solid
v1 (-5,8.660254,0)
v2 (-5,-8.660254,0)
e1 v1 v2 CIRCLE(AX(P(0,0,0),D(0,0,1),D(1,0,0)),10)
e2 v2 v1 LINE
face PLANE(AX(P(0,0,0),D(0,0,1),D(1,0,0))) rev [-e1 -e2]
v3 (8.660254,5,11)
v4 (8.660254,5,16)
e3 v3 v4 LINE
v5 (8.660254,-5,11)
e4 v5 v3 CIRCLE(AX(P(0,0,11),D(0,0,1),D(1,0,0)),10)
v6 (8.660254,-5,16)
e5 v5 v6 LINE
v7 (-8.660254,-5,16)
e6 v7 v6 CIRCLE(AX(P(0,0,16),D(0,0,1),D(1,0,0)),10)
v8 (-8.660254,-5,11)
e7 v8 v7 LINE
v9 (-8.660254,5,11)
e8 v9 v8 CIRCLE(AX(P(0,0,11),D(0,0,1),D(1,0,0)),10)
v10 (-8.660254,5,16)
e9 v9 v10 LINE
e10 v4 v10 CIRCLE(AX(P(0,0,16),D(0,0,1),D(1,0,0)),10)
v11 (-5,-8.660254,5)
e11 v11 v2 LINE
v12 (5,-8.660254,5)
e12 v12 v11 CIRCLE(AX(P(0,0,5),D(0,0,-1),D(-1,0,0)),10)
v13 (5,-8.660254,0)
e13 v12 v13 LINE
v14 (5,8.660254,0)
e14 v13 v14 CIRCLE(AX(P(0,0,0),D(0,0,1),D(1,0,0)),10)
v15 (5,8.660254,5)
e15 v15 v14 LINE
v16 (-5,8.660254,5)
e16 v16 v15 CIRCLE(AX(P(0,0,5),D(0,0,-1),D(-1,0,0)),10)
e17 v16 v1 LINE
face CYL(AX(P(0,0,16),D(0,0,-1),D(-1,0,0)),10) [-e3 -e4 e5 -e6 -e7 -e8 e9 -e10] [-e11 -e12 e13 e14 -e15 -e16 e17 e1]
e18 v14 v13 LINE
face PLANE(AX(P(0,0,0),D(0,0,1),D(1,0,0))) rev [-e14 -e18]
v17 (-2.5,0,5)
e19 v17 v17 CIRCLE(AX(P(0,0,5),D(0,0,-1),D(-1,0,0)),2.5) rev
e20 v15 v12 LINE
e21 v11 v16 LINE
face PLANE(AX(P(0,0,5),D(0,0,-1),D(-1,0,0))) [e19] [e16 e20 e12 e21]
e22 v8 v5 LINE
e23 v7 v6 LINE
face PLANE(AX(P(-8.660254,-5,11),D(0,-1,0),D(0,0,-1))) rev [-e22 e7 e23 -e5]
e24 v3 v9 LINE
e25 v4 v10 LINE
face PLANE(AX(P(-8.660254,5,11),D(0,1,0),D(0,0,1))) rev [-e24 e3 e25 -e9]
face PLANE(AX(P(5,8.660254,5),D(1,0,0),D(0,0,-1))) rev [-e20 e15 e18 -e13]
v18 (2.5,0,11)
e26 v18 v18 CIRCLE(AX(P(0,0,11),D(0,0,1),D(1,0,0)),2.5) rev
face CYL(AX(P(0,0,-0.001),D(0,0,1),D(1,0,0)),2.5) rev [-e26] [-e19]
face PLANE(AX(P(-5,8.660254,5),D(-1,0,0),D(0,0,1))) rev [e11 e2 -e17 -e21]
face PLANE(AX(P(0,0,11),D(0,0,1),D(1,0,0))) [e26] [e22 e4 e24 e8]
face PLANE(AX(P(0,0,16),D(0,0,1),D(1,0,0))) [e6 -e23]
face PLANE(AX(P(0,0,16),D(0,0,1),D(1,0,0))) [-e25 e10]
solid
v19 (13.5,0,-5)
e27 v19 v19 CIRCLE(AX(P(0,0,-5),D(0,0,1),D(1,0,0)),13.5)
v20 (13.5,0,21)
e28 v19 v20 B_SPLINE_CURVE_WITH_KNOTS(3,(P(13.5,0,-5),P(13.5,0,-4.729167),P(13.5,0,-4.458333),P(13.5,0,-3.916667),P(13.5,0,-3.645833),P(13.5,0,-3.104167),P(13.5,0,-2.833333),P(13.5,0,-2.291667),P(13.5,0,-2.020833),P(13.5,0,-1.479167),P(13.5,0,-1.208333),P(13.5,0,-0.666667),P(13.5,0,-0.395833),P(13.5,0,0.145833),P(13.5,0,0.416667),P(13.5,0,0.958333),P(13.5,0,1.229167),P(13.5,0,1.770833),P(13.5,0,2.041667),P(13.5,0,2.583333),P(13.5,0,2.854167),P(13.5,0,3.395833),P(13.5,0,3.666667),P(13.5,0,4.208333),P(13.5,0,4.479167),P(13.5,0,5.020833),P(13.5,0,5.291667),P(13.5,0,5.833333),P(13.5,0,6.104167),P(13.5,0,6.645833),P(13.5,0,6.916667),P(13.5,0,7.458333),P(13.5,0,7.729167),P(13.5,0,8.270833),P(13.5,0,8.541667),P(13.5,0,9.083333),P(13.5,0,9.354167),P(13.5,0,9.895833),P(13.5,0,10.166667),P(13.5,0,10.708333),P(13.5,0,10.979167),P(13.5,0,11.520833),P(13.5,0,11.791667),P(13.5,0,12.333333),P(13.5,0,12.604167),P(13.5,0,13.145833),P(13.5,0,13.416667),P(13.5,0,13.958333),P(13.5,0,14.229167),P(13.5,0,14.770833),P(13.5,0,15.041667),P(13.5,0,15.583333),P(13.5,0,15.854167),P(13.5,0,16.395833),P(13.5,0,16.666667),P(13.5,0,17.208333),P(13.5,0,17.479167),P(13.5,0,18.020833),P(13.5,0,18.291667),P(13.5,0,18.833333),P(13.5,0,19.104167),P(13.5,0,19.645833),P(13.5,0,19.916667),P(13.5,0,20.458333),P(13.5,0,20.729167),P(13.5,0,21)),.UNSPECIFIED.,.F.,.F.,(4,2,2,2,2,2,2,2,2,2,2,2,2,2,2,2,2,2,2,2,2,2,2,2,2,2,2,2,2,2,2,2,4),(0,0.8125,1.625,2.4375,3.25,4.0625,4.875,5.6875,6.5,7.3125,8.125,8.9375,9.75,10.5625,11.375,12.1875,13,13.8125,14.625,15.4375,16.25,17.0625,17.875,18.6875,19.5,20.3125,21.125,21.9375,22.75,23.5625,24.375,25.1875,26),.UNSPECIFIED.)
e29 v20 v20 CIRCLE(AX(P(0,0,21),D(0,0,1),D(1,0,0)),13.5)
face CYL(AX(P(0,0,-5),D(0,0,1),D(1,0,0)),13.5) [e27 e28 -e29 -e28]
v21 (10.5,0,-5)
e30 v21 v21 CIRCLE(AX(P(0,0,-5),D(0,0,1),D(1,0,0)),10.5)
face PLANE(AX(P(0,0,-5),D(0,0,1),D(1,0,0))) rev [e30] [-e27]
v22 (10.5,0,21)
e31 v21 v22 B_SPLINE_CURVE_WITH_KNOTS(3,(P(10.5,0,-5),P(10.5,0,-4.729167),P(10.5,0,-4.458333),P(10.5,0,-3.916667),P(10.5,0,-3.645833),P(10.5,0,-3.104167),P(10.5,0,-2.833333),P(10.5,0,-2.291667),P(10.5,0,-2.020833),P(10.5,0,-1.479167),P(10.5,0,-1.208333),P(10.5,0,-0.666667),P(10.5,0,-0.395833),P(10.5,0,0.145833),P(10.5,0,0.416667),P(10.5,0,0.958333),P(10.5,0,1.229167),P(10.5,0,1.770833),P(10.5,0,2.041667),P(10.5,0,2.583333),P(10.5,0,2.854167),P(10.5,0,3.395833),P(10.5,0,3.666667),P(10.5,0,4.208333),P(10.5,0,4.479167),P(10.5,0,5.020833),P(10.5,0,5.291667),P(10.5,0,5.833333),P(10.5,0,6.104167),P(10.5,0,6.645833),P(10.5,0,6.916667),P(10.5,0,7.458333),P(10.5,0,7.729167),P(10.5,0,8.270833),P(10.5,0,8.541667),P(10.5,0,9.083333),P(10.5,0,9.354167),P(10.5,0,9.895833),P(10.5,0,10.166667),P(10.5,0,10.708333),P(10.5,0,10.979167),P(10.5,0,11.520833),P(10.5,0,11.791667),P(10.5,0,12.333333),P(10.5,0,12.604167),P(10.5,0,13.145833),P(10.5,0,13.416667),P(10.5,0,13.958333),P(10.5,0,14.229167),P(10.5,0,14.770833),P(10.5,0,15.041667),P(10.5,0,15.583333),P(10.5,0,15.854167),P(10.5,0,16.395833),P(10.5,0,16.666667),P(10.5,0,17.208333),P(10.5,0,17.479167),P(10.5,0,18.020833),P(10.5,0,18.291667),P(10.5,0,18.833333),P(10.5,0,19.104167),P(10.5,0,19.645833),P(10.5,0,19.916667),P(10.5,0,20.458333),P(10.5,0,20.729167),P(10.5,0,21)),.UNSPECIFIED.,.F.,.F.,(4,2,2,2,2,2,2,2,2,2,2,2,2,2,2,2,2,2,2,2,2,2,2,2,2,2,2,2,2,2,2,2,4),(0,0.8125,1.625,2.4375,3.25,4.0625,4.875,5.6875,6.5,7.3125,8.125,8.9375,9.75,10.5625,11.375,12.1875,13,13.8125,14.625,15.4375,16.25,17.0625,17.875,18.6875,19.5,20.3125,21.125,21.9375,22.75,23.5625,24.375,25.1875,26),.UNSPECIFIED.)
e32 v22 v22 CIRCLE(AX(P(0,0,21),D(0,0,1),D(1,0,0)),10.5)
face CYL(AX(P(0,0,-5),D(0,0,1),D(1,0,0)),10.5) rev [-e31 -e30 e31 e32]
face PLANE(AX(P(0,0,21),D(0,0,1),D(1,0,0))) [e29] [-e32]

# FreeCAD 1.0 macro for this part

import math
import FreeCAD as App
import Part
import Sketcher
Q = App.Units.Quantity

doc = App.newDocument("Part")
body = doc.addObject("PartDesign::Body", "Body")

# Sketch on XY plane
sketch1 = doc.addObject("Sketcher::SketchObject", "Sketch")
body.addObject(sketch1)
sketch1.AttachmentSupport = (doc.XY_Plane, [""])
sketch1.MapMode = "FlatFace"
sketch1.addGeometry(Part.Circle(App.Vector(0, 0, 0), App.Vector(0, 0, 1), 10), False)
sketch1.addConstraint(Sketcher.Constraint("Coincident", 0, 3, -1, 1))
sketch1.addConstraint(Sketcher.Constraint("Diameter", 0, Q("20 mm")))
pad1 = doc.addObject("PartDesign::Pad", "Pad")
body.addObject(pad1)
pad1.Profile = sketch1
pad1.Length = 16

# Sketch on XY plane
sketch2 = doc.addObject("Sketcher::SketchObject", "Sketch001")
body.addObject(sketch2)
sketch2.AttachmentSupport = (doc.XY_Plane, [""])
sketch2.MapMode = "FlatFace"
sketch2.AttachmentOffset = App.Placement(App.Vector(0, 0, 16), App.Rotation())
sketch2.addGeometry(Part.Circle(App.Vector(0, 0, 0), App.Vector(0, 0, 1), 2.5), False)
sketch2.addConstraint(Sketcher.Constraint("Coincident", 0, 3, -1, 1))
sketch2.addConstraint(Sketcher.Constraint("Diameter", 0, Q("5 mm")))
pocket1 = doc.addObject("PartDesign::Pocket", "Pocket")
body.addObject(pocket1)
pocket1.Profile = sketch2
pocket1.Type = "UpToFirst"

# Sketch on XY plane
sketch3 = doc.addObject("Sketcher::SketchObject", "Sketch002")
body.addObject(sketch3)
sketch3.AttachmentSupport = (doc.XY_Plane, [""])
sketch3.MapMode = "FlatFace"
sketch3.AttachmentOffset = App.Placement(App.Vector(0, 0, 11), App.Rotation())
sketch3.addGeometry(Part.LineSegment(App.Vector(9, 5, 0), App.Vector(-9, 5, 0)), False)
sketch3.addGeometry(Part.ArcOfCircle(Part.Circle(App.Vector(0, 0, 0), App.Vector(0, 0, 1), 10), math.radians(150), math.radians(210)), False)
sketch3.addGeometry(Part.LineSegment(App.Vector(-9, -5, 0), App.Vector(9, -5, 0)), False)
sketch3.addGeometry(Part.ArcOfCircle(Part.Circle(App.Vector(0, 0, 0), App.Vector(0, 0, 1), 10), math.radians(-30), math.radians(30)), False)
sketch3.addConstraint(Sketcher.Constraint("Coincident", 0, 2, 1, 1))
sketch3.addConstraint(Sketcher.Constraint("Coincident", 1, 2, 2, 1))
sketch3.addConstraint(Sketcher.Constraint("Coincident", 2, 2, 3, 1))
sketch3.addConstraint(Sketcher.Constraint("Coincident", 3, 2, 0, 1))
sketch3.addConstraint(Sketcher.Constraint("Horizontal", 0))
sketch3.addConstraint(Sketcher.Constraint("Horizontal", 2))
sketch3.addConstraint(Sketcher.Constraint("Coincident", 1, 3, -1, 1))
sketch3.addConstraint(Sketcher.Constraint("Coincident", 3, 3, -1, 1))
sketch3.addConstraint(Sketcher.Constraint("Equal", 1, 3))
sketch3.addConstraint(Sketcher.Constraint("Vertical", 0, 2, 1, 2))
sketch3.addConstraint(Sketcher.Constraint("Radius", 1, Q("10 mm")))
sketch3.addConstraint(Sketcher.Constraint("DistanceY", -1, 1, 0, 2, Q("5 mm")))
pocket2 = doc.addObject("PartDesign::Pocket", "Pocket001")
body.addObject(pocket2)
pocket2.Profile = sketch3
pocket2.Length = 5
pocket2.Reversed = True

# Sketch on XY plane
sketch4 = doc.addObject("Sketcher::SketchObject", "Sketch003")
body.addObject(sketch4)
sketch4.AttachmentSupport = (doc.XY_Plane, [""])
sketch4.MapMode = "FlatFace"
sketch4.addGeometry(Part.LineSegment(App.Vector(5, 9, 0), App.Vector(5, -9, 0)), False)
sketch4.addGeometry(Part.ArcOfCircle(Part.Circle(App.Vector(0, 0, 0), App.Vector(0, 0, 1), 10), math.radians(-120), math.radians(-60)), False)
sketch4.addGeometry(Part.LineSegment(App.Vector(-5, -9, 0), App.Vector(-5, 9, 0)), False)
sketch4.addGeometry(Part.ArcOfCircle(Part.Circle(App.Vector(0, 0, 0), App.Vector(0, 0, 1), 10), math.radians(60), math.radians(120)), False)
sketch4.addConstraint(Sketcher.Constraint("Coincident", 0, 2, 1, 2))
sketch4.addConstraint(Sketcher.Constraint("Coincident", 1, 1, 2, 1))
sketch4.addConstraint(Sketcher.Constraint("Coincident", 2, 2, 3, 2))
sketch4.addConstraint(Sketcher.Constraint("Coincident", 3, 1, 0, 1))
sketch4.addConstraint(Sketcher.Constraint("Vertical", 0))
sketch4.addConstraint(Sketcher.Constraint("Vertical", 2))
sketch4.addConstraint(Sketcher.Constraint("Coincident", 1, 3, -1, 1))
sketch4.addConstraint(Sketcher.Constraint("Coincident", 3, 3, -1, 1))
sketch4.addConstraint(Sketcher.Constraint("Equal", 1, 3))
sketch4.addConstraint(Sketcher.Constraint("Horizontal", 0, 2, 1, 1))
sketch4.addConstraint(Sketcher.Constraint("Radius", 1, Q("10 mm")))
sketch4.addConstraint(Sketcher.Constraint("DistanceX", -1, 1, 0, 2, Q("5 mm")))
pocket3 = doc.addObject("PartDesign::Pocket", "Pocket002")
body.addObject(pocket3)
pocket3.Profile = sketch4
pocket3.Length = 5
pocket3.Reversed = True
body2 = doc.addObject("PartDesign::Body", "Body001")

# Sketch on XY plane
sketch5 = doc.addObject("Sketcher::SketchObject", "Sketch004")
body2.addObject(sketch5)
sketch5.AttachmentSupport = (doc.getObject("XY_Plane001"), [""])
sketch5.MapMode = "FlatFace"
sketch5.AttachmentOffset = App.Placement(App.Vector(0, 0, 16), App.Rotation())
sketch5.addGeometry(Part.Circle(App.Vector(0, 0, 0), App.Vector(0, 0, 1), 14), False)
sketch5.addGeometry(Part.Circle(App.Vector(0, 0, 0), App.Vector(0, 0, 1), 10), False)
sketch5.addConstraint(Sketcher.Constraint("Coincident", 0, 3, -1, 1))
sketch5.addConstraint(Sketcher.Constraint("Coincident", 1, 3, -1, 1))
sketch5.addConstraint(Sketcher.Constraint("Diameter", 0, Q("27 mm")))
sketch5.addConstraint(Sketcher.Constraint("Diameter", 1, Q("21 mm")))
pad2 = doc.addObject("PartDesign::Pad", "Pad001")
body2.addObject(pad2)
pad2.Profile = sketch5
pad2.Type = "TwoLengths"
pad2.Length = 5
pad2.Length2 = 21

doc.recompute()
